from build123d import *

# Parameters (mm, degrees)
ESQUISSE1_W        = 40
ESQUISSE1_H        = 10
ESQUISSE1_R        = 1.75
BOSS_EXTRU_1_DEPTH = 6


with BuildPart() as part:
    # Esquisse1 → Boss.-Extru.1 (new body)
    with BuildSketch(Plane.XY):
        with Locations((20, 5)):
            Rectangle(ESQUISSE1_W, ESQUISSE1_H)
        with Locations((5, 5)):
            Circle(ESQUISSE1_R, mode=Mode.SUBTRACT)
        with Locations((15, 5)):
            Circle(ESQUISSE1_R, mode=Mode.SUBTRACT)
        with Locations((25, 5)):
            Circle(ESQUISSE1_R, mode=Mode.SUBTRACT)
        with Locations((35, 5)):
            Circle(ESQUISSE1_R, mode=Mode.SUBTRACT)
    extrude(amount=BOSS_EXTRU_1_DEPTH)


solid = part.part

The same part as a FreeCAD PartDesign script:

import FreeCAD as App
import Part
import Sketcher

doc = App.newDocument("Part")
params = doc.addObject("Spreadsheet::Sheet", "Params")
for row, (alias, value) in enumerate([
    ("sketch1_diameter", "3.5 mm"),
    ("sketch1_width", "40 mm"),
    ("sketch1_height", "10 mm"),
    ("pad1_length", "6 mm"),
], start=1):
    params.set(f"A{row}", alias)
    params.set(f"B{row}", "=" + value)
    params.setAlias(f"B{row}", alias)

body = doc.addObject("PartDesign::Body", "Body")

sketch1 = body.newObject("Sketcher::SketchObject", "Sketch")
sketch1.AttachmentSupport = (doc.getObject("XY_Plane"), [""])
sketch1.MapMode = "FlatFace"
sketch1.addGeometry([
    Part.LineSegment(App.Vector(0, 10, 0), App.Vector(0, 0, 0)),
    Part.LineSegment(App.Vector(0, 0, 0), App.Vector(40, 0, 0)),
    Part.LineSegment(App.Vector(40, 0, 0), App.Vector(40, 10, 0)),
    Part.LineSegment(App.Vector(40, 10, 0), App.Vector(0, 10, 0)),
    Part.Circle(App.Vector(5, 5, 0), App.Vector(0, 0, 1), 1.75),
    Part.Circle(App.Vector(15, 5, 0), App.Vector(0, 0, 1), 1.75),
    Part.Circle(App.Vector(25, 5, 0), App.Vector(0, 0, 1), 1.75),
    Part.Circle(App.Vector(35, 5, 0), App.Vector(0, 0, 1), 1.75),
], False)
sketch1.addConstraint([
    Sketcher.Constraint("Coincident", 0, 2, 1, 1),
    Sketcher.Constraint("Coincident", 1, 2, 2, 1),
    Sketcher.Constraint("Coincident", 2, 2, 3, 1),
    Sketcher.Constraint("Coincident", 3, 2, 0, 1),
    Sketcher.Constraint("Vertical", 0),
    Sketcher.Constraint("Horizontal", 1),
    Sketcher.Constraint("Vertical", 2),
    Sketcher.Constraint("Horizontal", 3),
    Sketcher.Constraint("Coincident", 0, 2, -1, 1),
    Sketcher.Constraint("Equal", 4, 5),
    Sketcher.Constraint("Equal", 5, 6),
    Sketcher.Constraint("Equal", 6, 7),
    Sketcher.Constraint("Horizontal", 4, 3, 5, 3),
    Sketcher.Constraint("Horizontal", 5, 3, 6, 3),
    Sketcher.Constraint("Horizontal", 6, 3, 7, 3),
    Sketcher.Constraint("Diameter", 4, 3.5),
    Sketcher.Constraint("DistanceX", 1, 1, 1, 2, 40.0),
    Sketcher.Constraint("DistanceY", 0, 2, 0, 1, 10.0),
    Sketcher.Constraint("DistanceX", -1, 1, 4, 3, 5.0),
    Sketcher.Constraint("DistanceY", -1, 1, 4, 3, 5.0),
    Sketcher.Constraint("DistanceX", -1, 1, 5, 3, 15.0),
    Sketcher.Constraint("DistanceX", -1, 1, 6, 3, 25.0),
    Sketcher.Constraint("DistanceX", -1, 1, 7, 3, 35.0),
])
sketch1.setExpression("Constraints[15]", "Params.sketch1_diameter")
sketch1.setExpression("Constraints[16]", "Params.sketch1_width")
sketch1.setExpression("Constraints[17]", "Params.sketch1_height")
pad1 = body.newObject("PartDesign::Pad", "Pad")
pad1.Profile = sketch1
pad1.setExpression("Length", "Params.pad1_length")

doc.recompute()
